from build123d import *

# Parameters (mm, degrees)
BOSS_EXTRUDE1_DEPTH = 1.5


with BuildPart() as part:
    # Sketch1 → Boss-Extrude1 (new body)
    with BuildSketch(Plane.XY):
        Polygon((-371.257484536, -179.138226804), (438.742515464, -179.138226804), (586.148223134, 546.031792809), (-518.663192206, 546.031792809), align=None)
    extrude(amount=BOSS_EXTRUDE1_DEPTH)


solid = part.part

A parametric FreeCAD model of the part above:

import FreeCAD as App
import Part
import Sketcher
from FreeCAD import Vector
Q = App.Units.Quantity

doc = App.newDocument("Part")
body = doc.addObject("PartDesign::Body", "Body")

sketch1 = doc.addObject("Sketcher::SketchObject", "Sketch")
body.addObject(sketch1)
sketch1.AttachmentSupport = (doc.XY_Plane, [""])
sketch1.MapMode = "FlatFace"
sketch1.addGeometry([
    Part.LineSegment(Vector(-371.257485, -179.138227, 0), Vector(438.742515, -179.138227, 0)),
    Part.LineSegment(Vector(438.742515, -179.138227, 0), Vector(586.148223, 546.031793, 0)),
    Part.LineSegment(Vector(586.148223, 546.031793, 0), Vector(-518.663192, 546.031793, 0)),
    Part.LineSegment(Vector(-518.663192, 546.031793, 0), Vector(-371.257485, -179.138227, 0)),
], False)
sketch1.addConstraint([
    Sketcher.Constraint("Coincident", 0, 2, 1, 1),
    Sketcher.Constraint("Coincident", 1, 2, 2, 1),
    Sketcher.Constraint("Coincident", 2, 2, 3, 1),
    Sketcher.Constraint("Coincident", 3, 2, 0, 1),
    Sketcher.Constraint("Horizontal", 0),
    Sketcher.Constraint("Horizontal", 2),
    Sketcher.Constraint("Equal", 1, 3),
    Sketcher.Constraint("DistanceX", 0, 1, 0, 2, 810.0),
    Sketcher.Constraint("Distance", 1, 740.0),
    Sketcher.Constraint("Angle", 1, Q("78.51 deg")),
    Sketcher.Constraint("DistanceX", -1, 1, 0, 2, 438.742515),
    Sketcher.Constraint("DistanceY", 0, 2, -1, 1, 179.138227),
])
pad1 = doc.addObject("PartDesign::Pad", "Pad")
body.addObject(pad1)
pad1.Profile = sketch1
pad1.Length = 1.5

doc.recompute()
